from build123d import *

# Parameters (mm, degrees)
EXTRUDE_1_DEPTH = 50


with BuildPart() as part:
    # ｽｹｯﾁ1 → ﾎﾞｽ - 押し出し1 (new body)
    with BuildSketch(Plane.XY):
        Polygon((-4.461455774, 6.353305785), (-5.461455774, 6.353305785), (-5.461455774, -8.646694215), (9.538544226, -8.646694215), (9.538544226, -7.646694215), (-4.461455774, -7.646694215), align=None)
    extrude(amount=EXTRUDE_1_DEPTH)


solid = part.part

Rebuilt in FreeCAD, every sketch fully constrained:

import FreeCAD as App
import Part
import Sketcher
from FreeCAD import Vector
Q = App.Units.Quantity

doc = App.newDocument("Part")
body = doc.addObject("PartDesign::Body", "Body")

sketch1 = body.newObject("Sketcher::SketchObject", "Sketch")
sketch1.AttachmentSupport = (doc.getObject("XY_Plane"), [""])
sketch1.MapMode = "FlatFace"
sketch1.addGeometry([
    Part.LineSegment(Vector(-4.5, 6.4, 0), Vector(-5.5, 6.4, 0)),
    Part.LineSegment(Vector(-5.5, 6.4, 0), Vector(-5.5, -8.6, 0)),
    Part.LineSegment(Vector(-5.5, -8.6, 0), Vector(9.5, -8.6, 0)),
    Part.LineSegment(Vector(9.5, -8.6, 0), Vector(9.5, -7.6, 0)),
    Part.LineSegment(Vector(9.5, -7.6, 0), Vector(-4.5, -7.6, 0)),
    Part.LineSegment(Vector(-4.5, -7.6, 0), Vector(-4.5, 6.4, 0)),
], False)
sketch1.addConstraint([
    Sketcher.Constraint("Coincident", 0, 2, 1, 1),
    Sketcher.Constraint("Coincident", 1, 2, 2, 1),
    Sketcher.Constraint("Coincident", 2, 2, 3, 1),
    Sketcher.Constraint("Coincident", 3, 2, 4, 1),
    Sketcher.Constraint("Coincident", 4, 2, 5, 1),
    Sketcher.Constraint("Coincident", 5, 2, 0, 1),
    Sketcher.Constraint("Horizontal", 0),
    Sketcher.Constraint("Vertical", 1),
    Sketcher.Constraint("Horizontal", 2),
    Sketcher.Constraint("Vertical", 3),
    Sketcher.Constraint("Horizontal", 4),
    Sketcher.Constraint("Vertical", 5),
    Sketcher.Constraint("Equal", 2, 1),
    Sketcher.Constraint("Equal", 0, 3),
    Sketcher.Constraint("DistanceX", 0, 2, 0, 1, Q("1 mm")),
    Sketcher.Constraint("DistanceX", 2, 1, 2, 2, Q("15 mm")),
    Sketcher.Constraint("DistanceX", 0, 2, -1, 1, Q("5.461456 mm")),
    Sketcher.Constraint("DistanceY", -1, 1, 0, 2, Q("6.353306 mm")),
])
pad1 = body.newObject("PartDesign::Pad", "Pad")
pad1.Profile = sketch1
pad1.Length = 50

doc.recompute()
